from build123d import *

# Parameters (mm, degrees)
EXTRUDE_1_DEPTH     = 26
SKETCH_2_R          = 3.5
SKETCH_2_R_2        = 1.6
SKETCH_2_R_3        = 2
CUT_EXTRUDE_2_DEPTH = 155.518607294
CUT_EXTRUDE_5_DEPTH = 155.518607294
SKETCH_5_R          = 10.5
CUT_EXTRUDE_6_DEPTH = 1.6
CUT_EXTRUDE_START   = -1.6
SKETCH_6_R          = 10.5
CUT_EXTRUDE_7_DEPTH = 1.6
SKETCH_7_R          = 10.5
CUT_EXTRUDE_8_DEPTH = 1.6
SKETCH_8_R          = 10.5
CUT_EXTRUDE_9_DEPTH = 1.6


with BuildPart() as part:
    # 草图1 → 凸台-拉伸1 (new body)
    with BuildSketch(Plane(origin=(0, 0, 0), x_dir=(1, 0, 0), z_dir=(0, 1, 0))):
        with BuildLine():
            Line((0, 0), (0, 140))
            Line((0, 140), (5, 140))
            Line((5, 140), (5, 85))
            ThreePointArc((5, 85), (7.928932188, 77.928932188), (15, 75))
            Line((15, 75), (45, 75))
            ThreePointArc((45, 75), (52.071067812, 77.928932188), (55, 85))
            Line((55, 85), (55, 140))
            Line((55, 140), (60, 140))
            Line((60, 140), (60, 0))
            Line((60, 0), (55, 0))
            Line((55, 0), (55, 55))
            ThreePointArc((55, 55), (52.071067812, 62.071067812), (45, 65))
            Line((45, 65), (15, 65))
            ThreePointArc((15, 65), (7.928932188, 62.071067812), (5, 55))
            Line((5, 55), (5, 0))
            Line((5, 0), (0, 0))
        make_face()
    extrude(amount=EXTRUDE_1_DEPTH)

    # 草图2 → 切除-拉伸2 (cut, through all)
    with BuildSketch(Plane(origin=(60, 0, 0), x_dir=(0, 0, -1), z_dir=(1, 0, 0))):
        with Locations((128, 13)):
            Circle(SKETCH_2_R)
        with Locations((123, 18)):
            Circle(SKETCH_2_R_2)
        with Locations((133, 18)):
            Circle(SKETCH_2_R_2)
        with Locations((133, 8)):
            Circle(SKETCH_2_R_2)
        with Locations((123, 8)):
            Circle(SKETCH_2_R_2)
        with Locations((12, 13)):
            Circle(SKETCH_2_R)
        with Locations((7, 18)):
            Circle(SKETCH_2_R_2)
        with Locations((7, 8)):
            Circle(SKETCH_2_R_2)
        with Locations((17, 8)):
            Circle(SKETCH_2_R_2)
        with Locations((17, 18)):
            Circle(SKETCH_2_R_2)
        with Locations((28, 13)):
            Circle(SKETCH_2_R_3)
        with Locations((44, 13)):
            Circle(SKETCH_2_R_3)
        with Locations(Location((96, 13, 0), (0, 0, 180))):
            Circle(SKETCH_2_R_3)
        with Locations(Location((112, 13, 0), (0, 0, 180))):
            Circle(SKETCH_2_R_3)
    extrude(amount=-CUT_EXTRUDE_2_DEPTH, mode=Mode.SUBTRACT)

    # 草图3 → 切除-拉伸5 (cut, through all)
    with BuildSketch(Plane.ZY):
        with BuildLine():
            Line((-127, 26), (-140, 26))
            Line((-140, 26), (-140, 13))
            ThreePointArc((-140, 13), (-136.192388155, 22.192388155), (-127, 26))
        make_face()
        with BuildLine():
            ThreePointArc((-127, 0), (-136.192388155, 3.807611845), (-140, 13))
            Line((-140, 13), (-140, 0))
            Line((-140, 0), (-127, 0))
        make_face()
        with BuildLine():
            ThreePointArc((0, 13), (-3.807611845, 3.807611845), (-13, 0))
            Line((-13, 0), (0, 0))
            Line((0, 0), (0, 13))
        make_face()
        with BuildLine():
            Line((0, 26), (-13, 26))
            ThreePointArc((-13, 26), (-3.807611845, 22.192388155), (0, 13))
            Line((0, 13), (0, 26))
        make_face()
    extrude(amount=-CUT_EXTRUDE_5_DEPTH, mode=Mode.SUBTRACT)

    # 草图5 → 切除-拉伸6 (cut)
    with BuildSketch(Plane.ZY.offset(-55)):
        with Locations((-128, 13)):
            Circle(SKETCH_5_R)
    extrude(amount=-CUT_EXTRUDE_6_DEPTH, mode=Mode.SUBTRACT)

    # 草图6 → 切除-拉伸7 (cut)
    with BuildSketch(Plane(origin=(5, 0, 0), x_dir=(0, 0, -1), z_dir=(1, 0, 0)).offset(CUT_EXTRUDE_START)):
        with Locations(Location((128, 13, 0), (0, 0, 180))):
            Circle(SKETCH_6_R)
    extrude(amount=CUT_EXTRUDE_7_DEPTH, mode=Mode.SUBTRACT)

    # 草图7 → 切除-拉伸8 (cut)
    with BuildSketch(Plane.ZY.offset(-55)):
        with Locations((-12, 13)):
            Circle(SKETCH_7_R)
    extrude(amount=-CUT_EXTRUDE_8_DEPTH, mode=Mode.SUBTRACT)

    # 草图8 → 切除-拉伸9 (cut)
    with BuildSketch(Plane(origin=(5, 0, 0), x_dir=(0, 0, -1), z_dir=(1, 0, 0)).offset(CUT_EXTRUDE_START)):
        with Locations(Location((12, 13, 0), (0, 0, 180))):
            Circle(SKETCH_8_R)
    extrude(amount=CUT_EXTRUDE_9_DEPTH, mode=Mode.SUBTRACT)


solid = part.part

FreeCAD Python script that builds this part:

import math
import FreeCAD as App
import Part
import Sketcher

V = App.Vector
Q = App.Units.Quantity

doc = App.newDocument("Part")
body = doc.addObject("PartDesign::Body", "Body")

# Sketch on XZ plane
sketch1 = body.newObject("Sketcher::SketchObject", "Sketch")
sketch1.AttachmentSupport = (doc.getObject("XZ_Plane"), [""])
sketch1.MapMode = "FlatFace"
sketch1.addGeometry(Part.LineSegment(V(0, -140, 0), V(0, 0, 0)), False)
sketch1.addGeometry(Part.LineSegment(V(0, 0, 0), V(5, 0, 0)), False)
sketch1.addGeometry(Part.LineSegment(V(5, 0, 0), V(5, -55, 0)), False)
sketch1.addGeometry(Part.ArcOfCircle(Part.Circle(V(15, -55, 0), V(0, 0, 1), 10), math.radians(180), math.radians(270)), False)
sketch1.addGeometry(Part.LineSegment(V(15, -65, 0), V(45, -65, 0)), False)
sketch1.addGeometry(Part.ArcOfCircle(Part.Circle(V(45, -55, 0), V(0, 0, 1), 10), math.radians(-90), math.radians(0)), False)
sketch1.addGeometry(Part.LineSegment(V(55, -55, 0), V(55, 0, 0)), False)
sketch1.addGeometry(Part.LineSegment(V(55, 0, 0), V(60, 0, 0)), False)
sketch1.addGeometry(Part.LineSegment(V(60, 0, 0), V(60, -140, 0)), False)
sketch1.addGeometry(Part.LineSegment(V(60, -140, 0), V(55, -140, 0)), False)
sketch1.addGeometry(Part.LineSegment(V(55, -140, 0), V(55, -85, 0)), False)
sketch1.addGeometry(Part.ArcOfCircle(Part.Circle(V(45, -85, 0), V(0, 0, 1), 10), math.radians(0), math.radians(90)), False)
sketch1.addGeometry(Part.LineSegment(V(45, -75, 0), V(15, -75, 0)), False)
sketch1.addGeometry(Part.ArcOfCircle(Part.Circle(V(15, -85, 0), V(0, 0, 1), 10), math.radians(90), math.radians(180)), False)
sketch1.addGeometry(Part.LineSegment(V(5, -85, 0), V(5, -140, 0)), False)
sketch1.addGeometry(Part.LineSegment(V(5, -140, 0), V(0, -140, 0)), False)
sketch1.addConstraint(Sketcher.Constraint("Coincident", 0, 2, 1, 1))
sketch1.addConstraint(Sketcher.Constraint("Coincident", 1, 2, 2, 1))
sketch1.addConstraint(Sketcher.Constraint("Tangent", 2, 2, 3, 1))
sketch1.addConstraint(Sketcher.Constraint("Tangent", 3, 2, 4, 1))
sketch1.addConstraint(Sketcher.Constraint("Tangent", 4, 2, 5, 1))
sketch1.addConstraint(Sketcher.Constraint("Tangent", 5, 2, 6, 1))
sketch1.addConstraint(Sketcher.Constraint("Coincident", 6, 2, 7, 1))
sketch1.addConstraint(Sketcher.Constraint("Coincident", 7, 2, 8, 1))
sketch1.addConstraint(Sketcher.Constraint("Coincident", 8, 2, 9, 1))
sketch1.addConstraint(Sketcher.Constraint("Coincident", 9, 2, 10, 1))
sketch1.addConstraint(Sketcher.Constraint("Tangent", 10, 2, 11, 1))
sketch1.addConstraint(Sketcher.Constraint("Tangent", 11, 2, 12, 1))
sketch1.addConstraint(Sketcher.Constraint("Tangent", 12, 2, 13, 1))
sketch1.addConstraint(Sketcher.Constraint("Tangent", 13, 2, 14, 1))
sketch1.addConstraint(Sketcher.Constraint("Coincident", 14, 2, 15, 1))
sketch1.addConstraint(Sketcher.Constraint("Coincident", 15, 2, 0, 1))
sketch1.addConstraint(Sketcher.Constraint("Vertical", 0))
sketch1.addConstraint(Sketcher.Constraint("Horizontal", 1))
sketch1.addConstraint(Sketcher.Constraint("Vertical", 2))
sketch1.addConstraint(Sketcher.Constraint("Horizontal", 4))
sketch1.addConstraint(Sketcher.Constraint("Vertical", 6))
sketch1.addConstraint(Sketcher.Constraint("Horizontal", 7))
sketch1.addConstraint(Sketcher.Constraint("Vertical", 8))
sketch1.addConstraint(Sketcher.Constraint("Horizontal", 9))
sketch1.addConstraint(Sketcher.Constraint("Vertical", 10))
sketch1.addConstraint(Sketcher.Constraint("Horizontal", 12))
sketch1.addConstraint(Sketcher.Constraint("Vertical", 14))
sketch1.addConstraint(Sketcher.Constraint("Horizontal", 15))
sketch1.addConstraint(Sketcher.Constraint("Coincident", 0, 2, -1, 1))
sketch1.addConstraint(Sketcher.Constraint("Equal", 3, 5))
sketch1.addConstraint(Sketcher.Constraint("Equal", 5, 11))
sketch1.addConstraint(Sketcher.Constraint("Equal", 11, 13))
sketch1.addConstraint(Sketcher.Constraint("PointOnObject", 6, 2, -1))
sketch1.addConstraint(Sketcher.Constraint("Horizontal", 9, 2, 14, 2))
sketch1.addConstraint(Sketcher.Constraint("Vertical", 5, 3, 11, 3))
sketch1.addConstraint(Sketcher.Constraint("Vertical", 3, 3, 13, 3))
sketch1.addConstraint(Sketcher.Constraint("Equal", 1, 7))
sketch1.addConstraint(Sketcher.Constraint("Equal", 6, 10))
sketch1.addConstraint(Sketcher.Constraint("Radius", 3, Q("10 mm")))
sketch1.addConstraint(Sketcher.Constraint("DistanceX", 1, 1, 1, 2, Q("5 mm")))
sketch1.addConstraint(Sketcher.Constraint("DistanceX", 4, 1, 4, 2, Q("30 mm")))
sketch1.addConstraint(Sketcher.Constraint("DistanceY", 0, 1, 0, 2, Q("140 mm")))
sketch1.addConstraint(Sketcher.Constraint("DistanceY", 2, 2, 2, 1, Q("55 mm")))
pad1 = body.newObject("PartDesign::Pad", "Pad")
pad1.Profile = sketch1
pad1.Length = 26
pad1.Reversed = True

# Sketch on YZ plane
sketch2 = body.newObject("Sketcher::SketchObject", "Sketch001")
sketch2.AttachmentSupport = (doc.getObject("YZ_Plane"), [""])
sketch2.MapMode = "FlatFace"
sketch2.AttachmentOffset = App.Placement(V(0, 0, 60), App.Rotation())
sketch2.addGeometry(Part.Circle(V(13, -128, 0), V(0, 0, 1), 3.5), False)
sketch2.addGeometry(Part.Circle(V(18, -123, 0), V(0, 0, 1), 1.6), False)
sketch2.addGeometry(Part.Circle(V(18, -133, 0), V(0, 0, 1), 1.6), False)
sketch2.addGeometry(Part.Circle(V(8, -133, 0), V(0, 0, 1), 1.6), False)
sketch2.addGeometry(Part.Circle(V(8, -123, 0), V(0, 0, 1), 1.6), False)
sketch2.addGeometry(Part.Circle(V(13, -12, 0), V(0, 0, 1), 3.5), False)
sketch2.addGeometry(Part.Circle(V(18, -7, 0), V(0, 0, 1), 1.6), False)
sketch2.addGeometry(Part.Circle(V(8, -7, 0), V(0, 0, 1), 1.6), False)
sketch2.addGeometry(Part.Circle(V(8, -17, 0), V(0, 0, 1), 1.6), False)
sketch2.addGeometry(Part.Circle(V(18, -17, 0), V(0, 0, 1), 1.6), False)
sketch2.addGeometry(Part.Circle(V(13, -28, 0), V(0, 0, 1), 2), False)
sketch2.addGeometry(Part.Circle(V(13, -44, 0), V(0, 0, 1), 2), False)
sketch2.addGeometry(Part.Circle(V(13, -96, 0), V(0, 0, 1), 2), False)
sketch2.addGeometry(Part.Circle(V(13, -112, 0), V(0, 0, 1), 2), False)
sketch2.addConstraint(Sketcher.Constraint("Equal", 1, 2))
sketch2.addConstraint(Sketcher.Constraint("Equal", 2, 3))
sketch2.addConstraint(Sketcher.Constraint("Equal", 3, 4))
sketch2.addConstraint(Sketcher.Constraint("Equal", 0, 5))
sketch2.addConstraint(Sketcher.Constraint("Equal", 4, 6))
sketch2.addConstraint(Sketcher.Constraint("Equal", 6, 7))
sketch2.addConstraint(Sketcher.Constraint("Equal", 7, 8))
sketch2.addConstraint(Sketcher.Constraint("Equal", 8, 9))
sketch2.addConstraint(Sketcher.Constraint("Equal", 10, 11))
sketch2.addConstraint(Sketcher.Constraint("Equal", 11, 12))
sketch2.addConstraint(Sketcher.Constraint("Equal", 12, 13))
sketch2.addConstraint(Sketcher.Constraint("Horizontal", 2, 3, 3, 3))
sketch2.addConstraint(Sketcher.Constraint("Horizontal", 1, 3, 4, 3))
sketch2.addConstraint(Sketcher.Constraint("Horizontal", 6, 3, 7, 3))
sketch2.addConstraint(Sketcher.Constraint("Horizontal", 8, 3, 9, 3))
sketch2.addConstraint(Sketcher.Constraint("Vertical", 1, 3, 2, 3))
sketch2.addConstraint(Sketcher.Constraint("Vertical", 3, 3, 4, 3))
sketch2.addConstraint(Sketcher.Constraint("Vertical", 0, 3, 5, 3))
sketch2.addConstraint(Sketcher.Constraint("Vertical", 2, 3, 6, 3))
sketch2.addConstraint(Sketcher.Constraint("Vertical", 4, 3, 7, 3))
sketch2.addConstraint(Sketcher.Constraint("Vertical", 7, 3, 8, 3))
sketch2.addConstraint(Sketcher.Constraint("Vertical", 6, 3, 9, 3))
sketch2.addConstraint(Sketcher.Constraint("Vertical", 5, 3, 10, 3))
sketch2.addConstraint(Sketcher.Constraint("Vertical", 10, 3, 11, 3))
sketch2.addConstraint(Sketcher.Constraint("Vertical", 11, 3, 12, 3))
sketch2.addConstraint(Sketcher.Constraint("Vertical", 12, 3, 13, 3))
sketch2.addConstraint(Sketcher.Constraint("Diameter", 0, Q("7 mm")))
sketch2.addConstraint(Sketcher.Constraint("Diameter", 10, Q("4 mm")))
sketch2.addConstraint(Sketcher.Constraint("Diameter", 1, Q("3.2 mm")))
sketch2.addConstraint(Sketcher.Constraint("DistanceX", -1, 1, 0, 3, Q("13 mm")))
sketch2.addConstraint(Sketcher.Constraint("DistanceY", 0, 3, -1, 1, Q("128 mm")))
sketch2.addConstraint(Sketcher.Constraint("DistanceX", -1, 1, 1, 3, Q("18 mm")))
sketch2.addConstraint(Sketcher.Constraint("DistanceY", 1, 3, -1, 1, Q("123 mm")))
sketch2.addConstraint(Sketcher.Constraint("DistanceY", 2, 3, -1, 1, Q("133 mm")))
sketch2.addConstraint(Sketcher.Constraint("DistanceX", -1, 1, 3, 3, Q("8 mm")))
sketch2.addConstraint(Sketcher.Constraint("DistanceY", 5, 3, -1, 1, Q("12 mm")))
sketch2.addConstraint(Sketcher.Constraint("DistanceY", 6, 3, -1, 1, Q("7 mm")))
sketch2.addConstraint(Sketcher.Constraint("DistanceY", 8, 3, -1, 1, Q("17 mm")))
sketch2.addConstraint(Sketcher.Constraint("DistanceY", 10, 3, -1, 1, Q("28 mm")))
sketch2.addConstraint(Sketcher.Constraint("DistanceY", 11, 3, -1, 1, Q("44 mm")))
sketch2.addConstraint(Sketcher.Constraint("DistanceY", 12, 3, -1, 1, Q("96 mm")))
sketch2.addConstraint(Sketcher.Constraint("DistanceY", 13, 3, -1, 1, Q("112 mm")))
pocket1 = body.newObject("PartDesign::Pocket", "Pocket")
pocket1.Profile = sketch2
pocket1.Type = "ThroughAll"

# Sketch on YZ plane
sketch3 = body.newObject("Sketcher::SketchObject", "Sketch002")
sketch3.AttachmentSupport = (doc.getObject("YZ_Plane"), [""])
sketch3.MapMode = "FlatFace"
sketch3.addGeometry(Part.LineSegment(V(26, -127, 0), V(26, -140, 0)), False)
sketch3.addGeometry(Part.LineSegment(V(26, -140, 0), V(13, -140, 0)), False)
sketch3.addGeometry(Part.ArcOfCircle(Part.Circle(V(13, -127, 0), V(0, 0, 1), 13), math.radians(-90), math.radians(0)), False)
sketch3.addGeometry(Part.ArcOfCircle(Part.Circle(V(13, -127, 0), V(0, 0, 1), 13), math.radians(-180), math.radians(-90)), False)
sketch3.addGeometry(Part.LineSegment(V(13, -140, 0), V(0, -140, 0)), False)
sketch3.addGeometry(Part.LineSegment(V(0, -140, 0), V(0, -127, 0)), False)
sketch3.addGeometry(Part.ArcOfCircle(Part.Circle(V(13, -13, 0), V(0, 0, 1), 13), math.radians(90), math.radians(180)), False)
sketch3.addGeometry(Part.LineSegment(V(0, -13, 0), V(0, 0, 0)), False)
sketch3.addGeometry(Part.LineSegment(V(0, 0, 0), V(13, 0, 0)), False)
sketch3.addGeometry(Part.LineSegment(V(26, 0, 0), V(26, -13, 0)), False)
sketch3.addGeometry(Part.ArcOfCircle(Part.Circle(V(13, -13, 0), V(0, 0, 1), 13), math.radians(0), math.radians(90)), False)
sketch3.addGeometry(Part.LineSegment(V(13, 0, 0), V(26, 0, 0)), False)
sketch3.addConstraint(Sketcher.Constraint("Coincident", 0, 2, 1, 1))
sketch3.addConstraint(Sketcher.Constraint("Tangent", 1, 2, 2, 1))
sketch3.addConstraint(Sketcher.Constraint("Tangent", 2, 2, 0, 1))
sketch3.addConstraint(Sketcher.Constraint("Tangent", 3, 2, 4, 1))
sketch3.addConstraint(Sketcher.Constraint("Coincident", 4, 2, 5, 1))
sketch3.addConstraint(Sketcher.Constraint("Tangent", 5, 2, 3, 1))
sketch3.addConstraint(Sketcher.Constraint("Tangent", 6, 2, 7, 1))
sketch3.addConstraint(Sketcher.Constraint("Coincident", 7, 2, 8, 1))
sketch3.addConstraint(Sketcher.Constraint("Tangent", 8, 2, 6, 1))
sketch3.addConstraint(Sketcher.Constraint("Tangent", 9, 2, 10, 1))
sketch3.addConstraint(Sketcher.Constraint("Tangent", 10, 2, 11, 1))
sketch3.addConstraint(Sketcher.Constraint("Coincident", 11, 2, 9, 1))
sketch3.addConstraint(Sketcher.Constraint("Vertical", 0))
sketch3.addConstraint(Sketcher.Constraint("Horizontal", 1))
sketch3.addConstraint(Sketcher.Constraint("Horizontal", 4))
sketch3.addConstraint(Sketcher.Constraint("Vertical", 5))
sketch3.addConstraint(Sketcher.Constraint("Vertical", 7))
sketch3.addConstraint(Sketcher.Constraint("Horizontal", 8))
sketch3.addConstraint(Sketcher.Constraint("Vertical", 9))
sketch3.addConstraint(Sketcher.Constraint("Horizontal", 11))
sketch3.addConstraint(Sketcher.Constraint("Coincident", 7, 2, -1, 1))
sketch3.addConstraint(Sketcher.Constraint("Coincident", 3, 3, 2, 3))
sketch3.addConstraint(Sketcher.Constraint("Coincident", 10, 3, 6, 3))
sketch3.addConstraint(Sketcher.Constraint("Equal", 2, 3))
sketch3.addConstraint(Sketcher.Constraint("Equal", 3, 6))
sketch3.addConstraint(Sketcher.Constraint("Equal", 6, 10))
sketch3.addConstraint(Sketcher.Constraint("PointOnObject", 4, 2, -2))
sketch3.addConstraint(Sketcher.Constraint("Radius", 2, Q("13 mm")))
sketch3.addConstraint(Sketcher.Constraint("DistanceY", 2, 3, -1, 1, Q("127 mm")))
pocket2 = body.newObject("PartDesign::Pocket", "Pocket001")
pocket2.Profile = sketch3
pocket2.Type = "ThroughAll"
pocket2.Reversed = True

# Sketch on YZ plane
sketch4 = body.newObject("Sketcher::SketchObject", "Sketch003")
sketch4.AttachmentSupport = (doc.getObject("YZ_Plane"), [""])
sketch4.MapMode = "FlatFace"
sketch4.AttachmentOffset = App.Placement(V(0, 0, 55), App.Rotation())
sketch4.addGeometry(Part.Circle(V(13, -128, 0), V(0, 0, 1), 10), False)
sketch4.addConstraint(Sketcher.Constraint("Diameter", 0, Q("21 mm")))
sketch4.addConstraint(Sketcher.Constraint("DistanceX", -1, 1, 0, 3, Q("13 mm")))
sketch4.addConstraint(Sketcher.Constraint("DistanceY", 0, 3, -1, 1, Q("128 mm")))
pocket3 = body.newObject("PartDesign::Pocket", "Pocket002")
pocket3.Profile = sketch4
pocket3.Length = 1.6
pocket3.Reversed = True

# Sketch on YZ plane
sketch5 = body.newObject("Sketcher::SketchObject", "Sketch004")
sketch5.AttachmentSupport = (doc.getObject("YZ_Plane"), [""])
sketch5.MapMode = "FlatFace"
sketch5.AttachmentOffset = App.Placement(V(0, 0, 3.4), App.Rotation())
sketch5.addGeometry(Part.Circle(V(13, -128, 0), V(0, 0, 1), 10), False)
sketch5.addConstraint(Sketcher.Constraint("Diameter", 0, Q("21 mm")))
sketch5.addConstraint(Sketcher.Constraint("DistanceX", -1, 1, 0, 3, Q("13 mm")))
sketch5.addConstraint(Sketcher.Constraint("DistanceY", 0, 3, -1, 1, Q("128 mm")))
pocket4 = body.newObject("PartDesign::Pocket", "Pocket003")
pocket4.Profile = sketch5
pocket4.Length = 1.6
pocket4.Reversed = True

# Sketch on YZ plane
sketch6 = body.newObject("Sketcher::SketchObject", "Sketch005")
sketch6.AttachmentSupport = (doc.getObject("YZ_Plane"), [""])
sketch6.MapMode = "FlatFace"
sketch6.AttachmentOffset = App.Placement(V(0, 0, 55), App.Rotation())
sketch6.addGeometry(Part.Circle(V(13, -12, 0), V(0, 0, 1), 10), False)
sketch6.addConstraint(Sketcher.Constraint("Diameter", 0, Q("21 mm")))
sketch6.addConstraint(Sketcher.Constraint("DistanceX", -1, 1, 0, 3, Q("13 mm")))
sketch6.addConstraint(Sketcher.Constraint("DistanceY", 0, 3, -1, 1, Q("12 mm")))
pocket5 = body.newObject("PartDesign::Pocket", "Pocket004")
pocket5.Profile = sketch6
pocket5.Length = 1.6
pocket5.Reversed = True

# Sketch on YZ plane
sketch7 = body.newObject("Sketcher::SketchObject", "Sketch006")
sketch7.AttachmentSupport = (doc.getObject("YZ_Plane"), [""])
sketch7.MapMode = "FlatFace"
sketch7.AttachmentOffset = App.Placement(V(0, 0, 3.4), App.Rotation())
sketch7.addGeometry(Part.Circle(V(13, -12, 0), V(0, 0, 1), 10), False)
sketch7.addConstraint(Sketcher.Constraint("Diameter", 0, Q("21 mm")))
sketch7.addConstraint(Sketcher.Constraint("DistanceX", -1, 1, 0, 3, Q("13 mm")))
sketch7.addConstraint(Sketcher.Constraint("DistanceY", 0, 3, -1, 1, Q("12 mm")))
pocket6 = body.newObject("PartDesign::Pocket", "Pocket005")
pocket6.Profile = sketch7
pocket6.Length = 1.6
pocket6.Reversed = True

doc.recompute()
